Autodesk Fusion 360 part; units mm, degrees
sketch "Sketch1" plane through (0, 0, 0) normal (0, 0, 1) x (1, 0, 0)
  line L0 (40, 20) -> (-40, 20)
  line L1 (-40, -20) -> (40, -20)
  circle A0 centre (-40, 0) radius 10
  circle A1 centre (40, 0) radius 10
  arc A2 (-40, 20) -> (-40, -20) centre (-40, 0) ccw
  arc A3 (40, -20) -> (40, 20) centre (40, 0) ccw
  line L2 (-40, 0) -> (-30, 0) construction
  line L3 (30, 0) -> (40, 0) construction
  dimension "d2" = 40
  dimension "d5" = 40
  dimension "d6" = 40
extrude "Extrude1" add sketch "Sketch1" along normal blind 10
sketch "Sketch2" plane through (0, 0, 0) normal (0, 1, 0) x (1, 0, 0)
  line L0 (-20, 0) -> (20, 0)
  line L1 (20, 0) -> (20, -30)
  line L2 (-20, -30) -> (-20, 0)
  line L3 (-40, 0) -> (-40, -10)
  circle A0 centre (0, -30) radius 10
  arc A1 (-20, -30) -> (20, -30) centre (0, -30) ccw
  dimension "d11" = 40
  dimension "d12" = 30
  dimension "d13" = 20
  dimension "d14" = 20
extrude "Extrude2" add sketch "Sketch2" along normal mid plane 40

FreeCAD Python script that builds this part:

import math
import FreeCAD as App
import Part
import Sketcher
from FreeCAD import Vector
Q = App.Units.Quantity

doc = App.newDocument("Part")
body = doc.addObject("PartDesign::Body", "Body")

sketch1 = doc.addObject("Sketcher::SketchObject", "Sketch")
body.addObject(sketch1)
sketch1.AttachmentSupport = (doc.XY_Plane, [""])
sketch1.MapMode = "FlatFace"
sketch1.addGeometry([
    Part.ArcOfCircle(Part.Circle(Vector(40, 0, 0), Vector(0, 0, 1), 20), math.radians(-90), math.radians(90)),
    Part.LineSegment(Vector(40, 20, 0), Vector(-40, 20, 0)),
    Part.ArcOfCircle(Part.Circle(Vector(-40, 0, 0), Vector(0, 0, 1), 20), math.radians(90), math.radians(270)),
    Part.LineSegment(Vector(-40, -20, 0), Vector(40, -20, 0)),
    Part.Circle(Vector(-40, 0, 0), Vector(0, 0, 1), 10),
    Part.Circle(Vector(40, 0, 0), Vector(0, 0, 1), 10),
], False)
sketch1.addConstraint([
    Sketcher.Constraint("Tangent", 0, 2, 1, 1),
    Sketcher.Constraint("Tangent", 1, 2, 2, 1),
    Sketcher.Constraint("Tangent", 2, 2, 3, 1),
    Sketcher.Constraint("Tangent", 3, 2, 0, 1),
    Sketcher.Constraint("Horizontal", 1),
    Sketcher.Constraint("Horizontal", 3),
    Sketcher.Constraint("Coincident", 4, 3, 2, 3),
    Sketcher.Constraint("Coincident", 5, 3, 0, 3),
    Sketcher.Constraint("Equal", 4, 5),
    Sketcher.Constraint("Symmetric", 0, 3, 2, 3, -1, 1),
    Sketcher.Constraint("Radius", 0, Q("20 mm")),
    Sketcher.Constraint("Diameter", 4, Q("20 mm")),
    Sketcher.Constraint("DistanceX", -1, 1, 0, 3, Q("40 mm")),
])
pad1 = doc.addObject("PartDesign::Pad", "Pad")
body.addObject(pad1)
pad1.Profile = sketch1
pad1.Length = 10

sketch2 = doc.addObject("Sketcher::SketchObject", "Sketch001")
body.addObject(sketch2)
sketch2.AttachmentSupport = (doc.XZ_Plane, [""])
sketch2.MapMode = "FlatFace"
sketch2.addGeometry([
    Part.LineSegment(Vector(20, 0, 0), Vector(-20, 0, 0)),
    Part.LineSegment(Vector(-20, 0, 0), Vector(-20, 30, 0)),
    Part.ArcOfCircle(Part.Circle(Vector(0, 30, 0), Vector(0, 0, 1), 20), math.radians(0), math.radians(180)),
    Part.LineSegment(Vector(20, 30, 0), Vector(20, 0, 0)),
    Part.Circle(Vector(0, 30, 0), Vector(0, 0, 1), 10),
], False)
sketch2.addConstraint([
    Sketcher.Constraint("Coincident", 0, 2, 1, 1),
    Sketcher.Constraint("Tangent", 1, 2, 2, 2),
    Sketcher.Constraint("Tangent", 2, 1, 3, 1),
    Sketcher.Constraint("Coincident", 3, 2, 0, 1),
    Sketcher.Constraint("Horizontal", 0),
    Sketcher.Constraint("Vertical", 1),
    Sketcher.Constraint("Vertical", 3),
    Sketcher.Constraint("Coincident", 4, 3, 2, 3),
    Sketcher.Constraint("Symmetric", 0, 2, 3, 2, -1, 1),
    Sketcher.Constraint("Diameter", 4, Q("20 mm")),
    Sketcher.Constraint("Radius", 2, Q("20 mm")),
    Sketcher.Constraint("DistanceY", 1, 1, 1, 2, Q("30 mm")),
])
pad2 = doc.addObject("PartDesign::Pad", "Pad001")
body.addObject(pad2)
pad2.Profile = sketch2
pad2.Length = 40
pad2.Midplane = True

doc.recompute()
